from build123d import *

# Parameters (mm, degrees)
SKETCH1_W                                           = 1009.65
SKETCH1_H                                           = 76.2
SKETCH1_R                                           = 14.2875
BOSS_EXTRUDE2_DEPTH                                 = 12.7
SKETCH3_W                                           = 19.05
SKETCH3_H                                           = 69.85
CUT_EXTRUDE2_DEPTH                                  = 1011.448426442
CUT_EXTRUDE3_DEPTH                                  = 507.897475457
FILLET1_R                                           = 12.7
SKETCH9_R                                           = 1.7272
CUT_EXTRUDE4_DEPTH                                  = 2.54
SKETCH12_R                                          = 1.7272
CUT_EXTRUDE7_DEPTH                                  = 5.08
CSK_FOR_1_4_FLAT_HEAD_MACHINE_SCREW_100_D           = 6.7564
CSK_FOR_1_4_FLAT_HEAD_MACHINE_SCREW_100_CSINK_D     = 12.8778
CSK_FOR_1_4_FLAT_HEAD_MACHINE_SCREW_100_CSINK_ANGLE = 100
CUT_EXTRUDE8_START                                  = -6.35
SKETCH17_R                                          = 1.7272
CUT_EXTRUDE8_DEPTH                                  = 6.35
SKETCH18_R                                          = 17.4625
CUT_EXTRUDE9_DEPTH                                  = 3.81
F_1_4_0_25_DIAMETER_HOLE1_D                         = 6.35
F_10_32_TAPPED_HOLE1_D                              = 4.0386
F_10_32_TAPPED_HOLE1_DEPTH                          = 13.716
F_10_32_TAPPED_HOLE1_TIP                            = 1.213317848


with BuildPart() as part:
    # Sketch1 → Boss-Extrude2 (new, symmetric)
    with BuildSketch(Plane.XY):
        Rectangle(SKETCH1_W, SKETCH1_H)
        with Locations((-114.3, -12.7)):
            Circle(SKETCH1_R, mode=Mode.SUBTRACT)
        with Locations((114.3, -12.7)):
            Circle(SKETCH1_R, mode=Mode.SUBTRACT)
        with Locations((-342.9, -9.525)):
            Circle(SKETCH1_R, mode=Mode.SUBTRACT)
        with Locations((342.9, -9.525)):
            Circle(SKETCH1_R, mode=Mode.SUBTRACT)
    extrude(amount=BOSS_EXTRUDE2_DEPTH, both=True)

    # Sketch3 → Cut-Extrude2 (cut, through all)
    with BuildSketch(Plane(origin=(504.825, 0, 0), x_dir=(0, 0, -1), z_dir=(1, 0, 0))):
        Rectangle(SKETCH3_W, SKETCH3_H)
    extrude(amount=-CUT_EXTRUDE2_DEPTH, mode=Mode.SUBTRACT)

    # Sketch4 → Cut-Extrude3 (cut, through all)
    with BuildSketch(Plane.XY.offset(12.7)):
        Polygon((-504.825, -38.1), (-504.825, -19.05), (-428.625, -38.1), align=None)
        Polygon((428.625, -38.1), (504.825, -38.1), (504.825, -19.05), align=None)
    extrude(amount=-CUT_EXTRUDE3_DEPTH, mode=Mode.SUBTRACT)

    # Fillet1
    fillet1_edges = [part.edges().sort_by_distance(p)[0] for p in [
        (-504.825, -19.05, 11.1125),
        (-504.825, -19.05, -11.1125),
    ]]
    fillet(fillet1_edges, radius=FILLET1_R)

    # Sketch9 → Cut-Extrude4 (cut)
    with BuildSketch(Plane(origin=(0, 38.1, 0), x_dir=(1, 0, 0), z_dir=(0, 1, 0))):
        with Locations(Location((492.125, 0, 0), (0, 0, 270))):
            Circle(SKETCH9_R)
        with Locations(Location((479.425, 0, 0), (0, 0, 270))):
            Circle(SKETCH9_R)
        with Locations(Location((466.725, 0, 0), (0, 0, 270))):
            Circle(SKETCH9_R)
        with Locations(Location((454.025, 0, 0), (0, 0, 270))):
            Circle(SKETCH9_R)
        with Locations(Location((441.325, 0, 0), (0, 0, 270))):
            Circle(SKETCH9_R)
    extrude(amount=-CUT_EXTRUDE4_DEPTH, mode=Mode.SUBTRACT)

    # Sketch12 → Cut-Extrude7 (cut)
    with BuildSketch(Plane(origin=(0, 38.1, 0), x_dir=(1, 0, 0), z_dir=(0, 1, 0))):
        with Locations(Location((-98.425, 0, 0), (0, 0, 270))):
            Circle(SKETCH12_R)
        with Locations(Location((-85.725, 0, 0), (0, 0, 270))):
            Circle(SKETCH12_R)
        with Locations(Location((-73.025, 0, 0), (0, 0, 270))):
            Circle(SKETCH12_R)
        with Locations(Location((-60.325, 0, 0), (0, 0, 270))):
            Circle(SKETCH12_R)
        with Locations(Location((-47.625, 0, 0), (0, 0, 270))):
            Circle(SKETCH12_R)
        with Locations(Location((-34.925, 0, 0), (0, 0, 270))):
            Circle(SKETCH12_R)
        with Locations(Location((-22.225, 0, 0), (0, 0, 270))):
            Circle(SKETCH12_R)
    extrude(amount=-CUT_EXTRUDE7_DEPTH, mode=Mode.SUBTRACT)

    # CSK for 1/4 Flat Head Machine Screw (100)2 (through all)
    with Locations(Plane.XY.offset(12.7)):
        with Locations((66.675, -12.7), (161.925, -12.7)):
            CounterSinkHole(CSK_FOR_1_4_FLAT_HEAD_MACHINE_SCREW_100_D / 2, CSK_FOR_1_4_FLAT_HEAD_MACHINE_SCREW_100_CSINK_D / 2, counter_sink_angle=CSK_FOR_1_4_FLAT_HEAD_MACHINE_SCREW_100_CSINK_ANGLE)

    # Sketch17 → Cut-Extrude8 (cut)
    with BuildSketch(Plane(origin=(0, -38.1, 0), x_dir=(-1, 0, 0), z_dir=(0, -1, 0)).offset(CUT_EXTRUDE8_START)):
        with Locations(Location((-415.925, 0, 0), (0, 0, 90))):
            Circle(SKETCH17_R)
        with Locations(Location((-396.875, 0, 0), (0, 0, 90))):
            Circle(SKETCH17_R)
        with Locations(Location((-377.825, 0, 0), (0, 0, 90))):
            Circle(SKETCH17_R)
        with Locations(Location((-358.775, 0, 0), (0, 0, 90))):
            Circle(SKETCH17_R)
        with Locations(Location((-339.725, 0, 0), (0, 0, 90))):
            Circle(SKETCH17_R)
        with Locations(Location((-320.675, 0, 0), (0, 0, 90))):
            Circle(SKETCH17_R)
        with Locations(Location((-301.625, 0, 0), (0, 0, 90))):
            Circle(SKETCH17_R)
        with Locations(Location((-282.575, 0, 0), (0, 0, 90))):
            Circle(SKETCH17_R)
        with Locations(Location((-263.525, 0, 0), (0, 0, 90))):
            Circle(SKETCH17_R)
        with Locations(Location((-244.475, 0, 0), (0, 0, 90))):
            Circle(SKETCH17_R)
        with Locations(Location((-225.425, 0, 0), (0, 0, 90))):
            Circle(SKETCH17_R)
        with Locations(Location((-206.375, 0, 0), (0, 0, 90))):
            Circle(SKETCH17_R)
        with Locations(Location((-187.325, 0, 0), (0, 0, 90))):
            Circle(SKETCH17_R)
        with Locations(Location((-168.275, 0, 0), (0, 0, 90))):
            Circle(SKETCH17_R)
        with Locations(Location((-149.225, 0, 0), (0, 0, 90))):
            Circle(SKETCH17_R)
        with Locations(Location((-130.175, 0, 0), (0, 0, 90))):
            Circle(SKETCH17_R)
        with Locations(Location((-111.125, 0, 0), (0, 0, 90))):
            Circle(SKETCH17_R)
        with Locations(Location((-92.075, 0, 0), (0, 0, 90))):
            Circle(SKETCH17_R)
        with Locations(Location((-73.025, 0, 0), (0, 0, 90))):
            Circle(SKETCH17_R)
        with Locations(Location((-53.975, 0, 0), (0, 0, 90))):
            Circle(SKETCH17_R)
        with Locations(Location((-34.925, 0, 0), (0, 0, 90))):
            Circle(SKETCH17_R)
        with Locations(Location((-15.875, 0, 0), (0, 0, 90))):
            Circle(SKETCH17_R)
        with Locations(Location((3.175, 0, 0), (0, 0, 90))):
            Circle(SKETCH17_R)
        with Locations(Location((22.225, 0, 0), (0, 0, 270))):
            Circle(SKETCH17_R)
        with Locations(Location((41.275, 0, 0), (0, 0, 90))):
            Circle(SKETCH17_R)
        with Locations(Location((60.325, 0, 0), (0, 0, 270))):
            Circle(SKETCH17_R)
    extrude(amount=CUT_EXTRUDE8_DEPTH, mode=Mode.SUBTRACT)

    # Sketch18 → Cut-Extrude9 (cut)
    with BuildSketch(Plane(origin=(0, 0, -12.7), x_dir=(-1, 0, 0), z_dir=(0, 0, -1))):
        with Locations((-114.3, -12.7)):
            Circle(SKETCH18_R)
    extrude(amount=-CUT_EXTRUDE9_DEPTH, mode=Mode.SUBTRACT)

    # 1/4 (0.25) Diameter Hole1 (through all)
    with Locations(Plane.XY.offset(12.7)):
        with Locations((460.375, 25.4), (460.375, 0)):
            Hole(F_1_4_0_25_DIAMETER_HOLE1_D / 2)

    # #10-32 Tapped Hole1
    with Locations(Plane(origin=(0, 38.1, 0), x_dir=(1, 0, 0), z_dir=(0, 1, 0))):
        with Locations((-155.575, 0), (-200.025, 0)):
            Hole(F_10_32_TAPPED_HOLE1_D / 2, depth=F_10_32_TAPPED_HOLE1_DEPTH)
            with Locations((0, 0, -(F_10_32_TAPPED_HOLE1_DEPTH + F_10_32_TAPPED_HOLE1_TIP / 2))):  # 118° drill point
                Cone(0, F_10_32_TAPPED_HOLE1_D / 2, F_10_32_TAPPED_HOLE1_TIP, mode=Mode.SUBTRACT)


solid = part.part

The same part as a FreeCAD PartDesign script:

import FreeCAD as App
import Part
import Sketcher

V = App.Vector
Q = App.Units.Quantity


def edges_at(feature, points):
    """Names of the edges that pass closest to the given points."""
    edges = feature.Shape.Edges
    near = lambda p: min(range(len(edges)), key=lambda i: edges[i].distToShape(Part.Vertex(*p))[0])
    return sorted({f"Edge{near(p) + 1}" for p in points})


def add_polygon(sketch, points):
    """Adds a closed chain of lines whose ends are joined by coincident constraints."""
    first, n = sketch.GeometryCount, len(points)
    for a, b in zip(points, points[1:] + points[:1]):
        sketch.addGeometry(Part.LineSegment(App.Vector(*a, 0), App.Vector(*b, 0)), False)
    for i in range(n):
        sketch.addConstraint(Sketcher.Constraint("Coincident", first + i, 2, first + (i + 1) % n, 1))

doc = App.newDocument("Part")
body = doc.addObject("PartDesign::Body", "Body")

# Sketch on XY plane
sketch1 = body.newObject("Sketcher::SketchObject", "Sketch")
sketch1.AttachmentSupport = (doc.getObject("XY_Plane"), [""])
sketch1.MapMode = "FlatFace"
add_polygon(sketch1, [(-505, 38), (-505, -38), (505, -38), (505, 38)])  # lines 0-3
sketch1.addGeometry(Part.Circle(V(-114, -13, 0), V(0, 0, 1), 14), False)  # 4
sketch1.addGeometry(Part.Circle(V(114, -13, 0), V(0, 0, 1), 14), False)  # 5
sketch1.addGeometry(Part.Circle(V(-343, -10, 0), V(0, 0, 1), 14), False)  # 6
sketch1.addGeometry(Part.Circle(V(343, -10, 0), V(0, 0, 1), 14), False)  # 7
sketch1.addConstraint([
    Sketcher.Constraint("Vertical", 0),
    Sketcher.Constraint("Horizontal", 1),
    Sketcher.Constraint("Vertical", 2),
    Sketcher.Constraint("Horizontal", 3),
    Sketcher.Constraint("Equal", 4, 5),
    Sketcher.Constraint("Equal", 5, 6),
    Sketcher.Constraint("Equal", 6, 7),
    Sketcher.Constraint("Symmetric", 0, 2, 2, 2, -1, 1),
    Sketcher.Constraint("Symmetric", 4, 3, 5, 3, -2),
    Sketcher.Constraint("Symmetric", 6, 3, 7, 3, -2),
    Sketcher.Constraint("DistanceY", 0, 2, 0, 1, Q("3 in")),
    Sketcher.Constraint("Diameter", 4, Q("1.125 in")),
    Sketcher.Constraint("DistanceX", 4, 3, 5, 3, Q("9 in")),
    Sketcher.Constraint("DistanceX", 6, 3, 4, 3, Q("9 in")),
    Sketcher.Constraint("DistanceY", 0, 2, 4, 3, Q("1 in")),
    Sketcher.Constraint("DistanceX", 1, 1, 1, 2, Q("39.75 in")),
    Sketcher.Constraint("DistanceY", 6, 3, -1, 1, Q("0.375 in")),
])
pad1 = body.newObject("PartDesign::Pad", "Pad")
pad1.Profile = sketch1
pad1.Length = Q("1 in")
pad1.Midplane = True

# Sketch on YZ plane
sketch2 = body.newObject("Sketcher::SketchObject", "Sketch001")
sketch2.AttachmentSupport = (doc.getObject("YZ_Plane"), [""])
sketch2.MapMode = "FlatFace"
sketch2.AttachmentOffset = App.Placement(V(0, 0, 19.875 * 25.4), App.Rotation())
add_polygon(sketch2, [(35, 10), (-35, 10), (-35, -10), (35, -10)])  # lines 0-3
sketch2.addConstraint([
    Sketcher.Constraint("Horizontal", 0),
    Sketcher.Constraint("Vertical", 1),
    Sketcher.Constraint("Horizontal", 2),
    Sketcher.Constraint("Vertical", 3),
    Sketcher.Constraint("Symmetric", 0, 2, 2, 2, -1, 1),
    Sketcher.Constraint("DistanceX", 0, 2, 0, 1, Q("2.75 in")),
    Sketcher.Constraint("DistanceY", 1, 2, 1, 1, Q("0.75 in")),
])
pocket1 = body.newObject("PartDesign::Pocket", "Pocket")
pocket1.Profile = sketch2
pocket1.Type = "ThroughAll"

# Sketch on XY plane
sketch3 = body.newObject("Sketcher::SketchObject", "Sketch002")
sketch3.AttachmentSupport = (doc.getObject("XY_Plane"), [""])
sketch3.MapMode = "FlatFace"
sketch3.AttachmentOffset = App.Placement(V(0, 0, 0.5 * 25.4), App.Rotation())
add_polygon(sketch3, [(-505, -19), (-505, -38), (-429, -38)])  # lines 0-2
add_polygon(sketch3, [(429, -38), (505, -38), (505, -19)])  # lines 3-5
sketch3.addConstraint([
    Sketcher.Constraint("Vertical", 0),
    Sketcher.Constraint("Horizontal", 1),
    Sketcher.Constraint("Horizontal", 3),
    Sketcher.Constraint("Vertical", 4),
    Sketcher.Constraint("Symmetric", 0, 2, 3, 2, -2),
    Sketcher.Constraint("Horizontal", 2, 2, 4, 2),
    Sketcher.Constraint("Equal", 1, 3),
    Sketcher.Constraint("DistanceX", 1, 1, 1, 2, Q("3 in")),
    Sketcher.Constraint("DistanceY", 0, 2, 0, 1, Q("0.75 in")),
    Sketcher.Constraint("DistanceY", 0, 2, -1, 1, Q("1.5 in")),
    Sketcher.Constraint("DistanceX", 1, 2, 3, 2, Q("36.75 in")),
])
pocket2 = body.newObject("PartDesign::Pocket", "Pocket001")
pocket2.Profile = sketch3
pocket2.Type = "ThroughAll"
doc.recompute()

fillet = body.newObject("PartDesign::Fillet", "Fillet")
fillet.Base = (pocket2, edges_at(pocket2, [(-504.825, -19.05, 11.113), (-504.825, -19.05, -11.113)]))
fillet.Radius = Q("0.5 in")

# Sketch on XZ plane
sketch4 = body.newObject("Sketcher::SketchObject", "Sketch003")
sketch4.AttachmentSupport = (doc.getObject("XZ_Plane"), [""])
sketch4.MapMode = "FlatFace"
sketch4.AttachmentOffset = App.Placement(V(0, 0, -1.5 * 25.4), App.Rotation())
sketch4.addGeometry([
    Part.Circle(V(492.1, 0, 0), V(0, 0, 1), 1.7),  # 0
    Part.Circle(V(479.4, 0, 0), V(0, 0, 1), 1.7),  # 1
    Part.Circle(V(466.7, 0, 0), V(0, 0, 1), 1.7),  # 2
    Part.Circle(V(454, 0, 0), V(0, 0, 1), 1.7),  # 3
    Part.Circle(V(441.3, 0, 0), V(0, 0, 1), 1.7),  # 4
], False)
sketch4.addConstraint([
    Sketcher.Constraint("Equal", 0, 1),
    Sketcher.Constraint("Equal", 1, 2),
    Sketcher.Constraint("Equal", 2, 3),
    Sketcher.Constraint("Equal", 3, 4),
    Sketcher.Constraint("PointOnObject", 0, 3, -1),
    Sketcher.Constraint("PointOnObject", 1, 3, -1),
    Sketcher.Constraint("PointOnObject", 2, 3, -1),
    Sketcher.Constraint("PointOnObject", 3, 3, -1),
    Sketcher.Constraint("PointOnObject", 4, 3, -1),
    Sketcher.Constraint("Diameter", 0, Q("0.136 in")),
    Sketcher.Constraint("DistanceX", 2, 3, 0, 3, Q("1 in")),
    Sketcher.Constraint("DistanceX", 3, 3, 1, 3, Q("1 in")),
    Sketcher.Constraint("DistanceX", 4, 3, 2, 3, Q("1 in")),
    Sketcher.Constraint("DistanceX", 1, 3, 0, 3, Q("0.5 in")),
    Sketcher.Constraint("DistanceX", -1, 1, 0, 3, Q("19.375 in")),
])
pocket3 = body.newObject("PartDesign::Pocket", "Pocket002")
pocket3.Profile = sketch4
pocket3.Length = Q("0.1 in")
pocket3.Reversed = True

# Sketch on XZ plane
sketch5 = body.newObject("Sketcher::SketchObject", "Sketch004")
sketch5.AttachmentSupport = (doc.getObject("XZ_Plane"), [""])
sketch5.MapMode = "FlatFace"
sketch5.AttachmentOffset = App.Placement(V(0, 0, -1.5 * 25.4), App.Rotation())
sketch5.addGeometry([
    Part.Circle(V(-98.4, 0, 0), V(0, 0, 1), 1.7),  # 0
    Part.Circle(V(-85.7, 0, 0), V(0, 0, 1), 1.7),  # 1
    Part.Circle(V(-73, 0, 0), V(0, 0, 1), 1.7),  # 2
    Part.Circle(V(-60.3, 0, 0), V(0, 0, 1), 1.7),  # 3
    Part.Circle(V(-47.6, 0, 0), V(0, 0, 1), 1.7),  # 4
    Part.Circle(V(-34.9, 0, 0), V(0, 0, 1), 1.7),  # 5
    Part.Circle(V(-22.2, 0, 0), V(0, 0, 1), 1.7),  # 6
], False)
sketch5.addConstraint([
    Sketcher.Constraint("Equal", 0, 1),
    Sketcher.Constraint("Equal", 1, 2),
    Sketcher.Constraint("Equal", 2, 3),
    Sketcher.Constraint("Equal", 3, 4),
    Sketcher.Constraint("Equal", 4, 5),
    Sketcher.Constraint("Equal", 5, 6),
    Sketcher.Constraint("PointOnObject", 0, 3, -1),
    Sketcher.Constraint("PointOnObject", 1, 3, -1),
    Sketcher.Constraint("PointOnObject", 2, 3, -1),
    Sketcher.Constraint("PointOnObject", 3, 3, -1),
    Sketcher.Constraint("PointOnObject", 4, 3, -1),
    Sketcher.Constraint("PointOnObject", 5, 3, -1),
    Sketcher.Constraint("PointOnObject", 6, 3, -1),
    Sketcher.Constraint("Diameter", 0, Q("0.136 in")),
    Sketcher.Constraint("DistanceX", 0, 3, 2, 3, Q("1 in")),
    Sketcher.Constraint("DistanceX", 1, 3, 3, 3, Q("1 in")),
    Sketcher.Constraint("DistanceX", 2, 3, 4, 3, Q("1 in")),
    Sketcher.Constraint("DistanceX", 3, 3, 5, 3, Q("1 in")),
    Sketcher.Constraint("DistanceX", 4, 3, 6, 3, Q("1 in")),
    Sketcher.Constraint("DistanceX", 0, 3, 1, 3, Q("0.5 in")),
    Sketcher.Constraint("DistanceX", 0, 3, -1, 1, Q("3.875 in")),
])
pocket4 = body.newObject("PartDesign::Pocket", "Pocket003")
pocket4.Profile = sketch5
pocket4.Length = Q("0.2 in")
pocket4.Reversed = True

# Sketch on XY plane
sketch6 = body.newObject("Sketcher::SketchObject", "Sketch005")
sketch6.AttachmentSupport = (doc.getObject("XY_Plane"), [""])
sketch6.MapMode = "FlatFace"
sketch6.AttachmentOffset = App.Placement(V(0, 0, 0.5 * 25.4), App.Rotation())
sketch6.addGeometry([
    Part.Circle(V(66.7, -12.7, 0), V(0, 0, 1), 3.4),
    Part.Circle(V(161.9, -12.7, 0), V(0, 0, 1), 3.4),
], False)
sketch6.addConstraint([
    Sketcher.Constraint("Equal", 0, 1),
    Sketcher.Constraint("Horizontal", 0, 3, 1, 3),
    Sketcher.Constraint("Diameter", 0, Q("0.266 in")),
    Sketcher.Constraint("DistanceY", 0, 3, -1, 1, Q("0.5 in")),
    Sketcher.Constraint("DistanceX", 0, 3, 1, 3, Q("3.75 in")),
    Sketcher.Constraint("DistanceX", -1, 1, 0, 3, Q("2.625 in")),
])
doc.recompute()
hole = body.newObject("PartDesign::Hole", "Hole")
hole.Profile = sketch6
hole.ThreadType = "None"
hole.Diameter = Q("0.266 in")
hole.DepthType = "ThroughAll"
hole.HoleCutType = "Countersink"
hole.HoleCutDiameter = Q("0.507 in")
hole.HoleCutCountersinkAngle = 100

# Sketch on XZ plane
sketch7 = body.newObject("Sketcher::SketchObject", "Sketch006")
sketch7.AttachmentSupport = (doc.getObject("XZ_Plane"), [""])
sketch7.MapMode = "FlatFace"
sketch7.AttachmentOffset = App.Placement(V(0, 0, 1.25 * 25.4), App.Rotation())
sketch7.addGeometry([
    Part.Circle(V(415.9, 0, 0), V(0, 0, 1), 1.7),  # 0
    Part.Circle(V(396.9, 0, 0), V(0, 0, 1), 1.7),  # 1
    Part.Circle(V(377.8, 0, 0), V(0, 0, 1), 1.7),  # 2
    Part.Circle(V(358.8, 0, 0), V(0, 0, 1), 1.7),  # 3
    Part.Circle(V(339.7, 0, 0), V(0, 0, 1), 1.7),  # 4
    Part.Circle(V(320.7, 0, 0), V(0, 0, 1), 1.7),  # 5
    Part.Circle(V(301.6, 0, 0), V(0, 0, 1), 1.7),  # 6
    Part.Circle(V(282.6, 0, 0), V(0, 0, 1), 1.7),  # 7
    Part.Circle(V(263.5, 0, 0), V(0, 0, 1), 1.7),  # 8
    Part.Circle(V(244.5, 0, 0), V(0, 0, 1), 1.7),  # 9
    Part.Circle(V(225.4, 0, 0), V(0, 0, 1), 1.7),  # 10
    Part.Circle(V(206.4, 0, 0), V(0, 0, 1), 1.7),  # 11
    Part.Circle(V(187.3, 0, 0), V(0, 0, 1), 1.7),  # 12
    Part.Circle(V(168.3, 0, 0), V(0, 0, 1), 1.7),  # 13
    Part.Circle(V(149.2, 0, 0), V(0, 0, 1), 1.7),  # 14
    Part.Circle(V(130.2, 0, 0), V(0, 0, 1), 1.7),  # 15
    Part.Circle(V(111.1, 0, 0), V(0, 0, 1), 1.7),  # 16
    Part.Circle(V(92.1, 0, 0), V(0, 0, 1), 1.7),  # 17
    Part.Circle(V(73, 0, 0), V(0, 0, 1), 1.7),  # 18
    Part.Circle(V(54, 0, 0), V(0, 0, 1), 1.7),  # 19
    Part.Circle(V(34.9, 0, 0), V(0, 0, 1), 1.7),  # 20
    Part.Circle(V(15.9, 0, 0), V(0, 0, 1), 1.7),  # 21
    Part.Circle(V(-3.2, 0, 0), V(0, 0, 1), 1.7),  # 22
    Part.Circle(V(-22.2, 0, 0), V(0, 0, 1), 1.7),  # 23
    Part.Circle(V(-41.3, 0, 0), V(0, 0, 1), 1.7),  # 24
    Part.Circle(V(-60.3, 0, 0), V(0, 0, 1), 1.7),  # 25
], False)
sketch7.addConstraint([
    Sketcher.Constraint("Equal", 0, 1),
    Sketcher.Constraint("Equal", 1, 2),
    Sketcher.Constraint("Equal", 2, 3),
    Sketcher.Constraint("Equal", 3, 4),
    Sketcher.Constraint("Equal", 4, 5),
    Sketcher.Constraint("Equal", 5, 6),
    Sketcher.Constraint("Equal", 6, 7),
    Sketcher.Constraint("Equal", 7, 8),
    Sketcher.Constraint("Equal", 8, 9),
    Sketcher.Constraint("Equal", 9, 10),
    Sketcher.Constraint("Equal", 10, 11),
    Sketcher.Constraint("Equal", 11, 12),
    Sketcher.Constraint("Equal", 12, 13),
    Sketcher.Constraint("Equal", 13, 14),
    Sketcher.Constraint("Equal", 14, 15),
    Sketcher.Constraint("Equal", 15, 16),
    Sketcher.Constraint("Equal", 16, 17),
    Sketcher.Constraint("Equal", 17, 18),
    Sketcher.Constraint("Equal", 18, 19),
    Sketcher.Constraint("Equal", 19, 20),
    Sketcher.Constraint("Equal", 20, 21),
    Sketcher.Constraint("Equal", 21, 22),
    Sketcher.Constraint("Equal", 22, 23),
    Sketcher.Constraint("Equal", 23, 24),
    Sketcher.Constraint("Equal", 24, 25),
    Sketcher.Constraint("PointOnObject", 0, 3, -1),
    Sketcher.Constraint("PointOnObject", 1, 3, -1),
    Sketcher.Constraint("PointOnObject", 2, 3, -1),
    Sketcher.Constraint("PointOnObject", 3, 3, -1),
    Sketcher.Constraint("PointOnObject", 4, 3, -1),
    Sketcher.Constraint("PointOnObject", 5, 3, -1),
    Sketcher.Constraint("PointOnObject", 6, 3, -1),
    Sketcher.Constraint("PointOnObject", 7, 3, -1),
    Sketcher.Constraint("PointOnObject", 8, 3, -1),
    Sketcher.Constraint("PointOnObject", 9, 3, -1),
    Sketcher.Constraint("PointOnObject", 10, 3, -1),
    Sketcher.Constraint("PointOnObject", 11, 3, -1),
    Sketcher.Constraint("PointOnObject", 12, 3, -1),
    Sketcher.Constraint("PointOnObject", 13, 3, -1),
    Sketcher.Constraint("PointOnObject", 14, 3, -1),
    Sketcher.Constraint("PointOnObject", 15, 3, -1),
    Sketcher.Constraint("PointOnObject", 16, 3, -1),
    Sketcher.Constraint("PointOnObject", 17, 3, -1),
    Sketcher.Constraint("PointOnObject", 18, 3, -1),
    Sketcher.Constraint("PointOnObject", 19, 3, -1),
    Sketcher.Constraint("PointOnObject", 20, 3, -1),
    Sketcher.Constraint("PointOnObject", 21, 3, -1),
    Sketcher.Constraint("PointOnObject", 22, 3, -1),
    Sketcher.Constraint("PointOnObject", 23, 3, -1),
    Sketcher.Constraint("PointOnObject", 24, 3, -1),
    Sketcher.Constraint("PointOnObject", 25, 3, -1),
    Sketcher.Constraint("Diameter", 0, Q("0.136 in")),
    Sketcher.Constraint("DistanceX", 4, 3, 0, 3, Q("3 in")),
    Sketcher.Constraint("DistanceX", 5, 3, 1, 3, Q("3 in")),
    Sketcher.Constraint("DistanceX", 6, 3, 2, 3, Q("3 in")),
    Sketcher.Constraint("DistanceX", 7, 3, 3, 3, Q("3 in")),
    Sketcher.Constraint("DistanceX", 8, 3, 4, 3, Q("3 in")),
    Sketcher.Constraint("DistanceX", 9, 3, 5, 3, Q("3 in")),
    Sketcher.Constraint("DistanceX", 10, 3, 6, 3, Q("3 in")),
    Sketcher.Constraint("DistanceX", 11, 3, 7, 3, Q("3 in")),
    Sketcher.Constraint("DistanceX", 12, 3, 8, 3, Q("3 in")),
    Sketcher.Constraint("DistanceX", 13, 3, 9, 3, Q("3 in")),
    Sketcher.Constraint("DistanceX", 14, 3, 10, 3, Q("3 in")),
    Sketcher.Constraint("DistanceX", 15, 3, 11, 3, Q("3 in")),
    Sketcher.Constraint("DistanceX", 16, 3, 12, 3, Q("3 in")),
    Sketcher.Constraint("DistanceX", 17, 3, 13, 3, Q("3 in")),
    Sketcher.Constraint("DistanceX", 18, 3, 14, 3, Q("3 in")),
    Sketcher.Constraint("DistanceX", 19, 3, 15, 3, Q("3 in")),
    Sketcher.Constraint("DistanceX", 20, 3, 16, 3, Q("3 in")),
    Sketcher.Constraint("DistanceX", 21, 3, 17, 3, Q("3 in")),
    Sketcher.Constraint("DistanceX", 22, 3, 18, 3, Q("3 in")),
    Sketcher.Constraint("DistanceX", 23, 3, 19, 3, Q("3 in")),
    Sketcher.Constraint("DistanceX", 24, 3, 20, 3, Q("3 in")),
    Sketcher.Constraint("DistanceX", 25, 3, 21, 3, Q("3 in")),
    Sketcher.Constraint("DistanceX", 2, 3, 0, 3, Q("1.5 in")),
    Sketcher.Constraint("DistanceX", 3, 3, 1, 3, Q("1.5 in")),
    Sketcher.Constraint("DistanceX", 1, 3, 0, 3, Q("0.75 in")),
    Sketcher.Constraint("DistanceX", -1, 1, 0, 3, Q("16.375 in")),
])
pocket5 = body.newObject("PartDesign::Pocket", "Pocket004")
pocket5.Profile = sketch7
pocket5.Length = Q("0.25 in")
pocket5.Reversed = True

# Sketch on XY plane
sketch8 = body.newObject("Sketcher::SketchObject", "Sketch007")
sketch8.AttachmentSupport = (doc.getObject("XY_Plane"), [""])
sketch8.MapMode = "FlatFace"
sketch8.AttachmentOffset = App.Placement(V(0, 0, -0.5 * 25.4), App.Rotation())
sketch8.addGeometry(Part.Circle(V(114, -13, 0), V(0, 0, 1), 17), False)
sketch8.addConstraint([
    Sketcher.Constraint("Diameter", 0, Q("1.375 in")),
    Sketcher.Constraint("DistanceX", -1, 1, 0, 3, Q("4.5 in")),
    Sketcher.Constraint("DistanceY", 0, 3, -1, 1, Q("0.5 in")),
])
pocket6 = body.newObject("PartDesign::Pocket", "Pocket005")
pocket6.Profile = sketch8
pocket6.Length = Q("0.15 in")
pocket6.Reversed = True

# Sketch on XY plane
sketch9 = body.newObject("Sketcher::SketchObject", "Sketch008")
sketch9.AttachmentSupport = (doc.getObject("XY_Plane"), [""])
sketch9.MapMode = "FlatFace"
sketch9.AttachmentOffset = App.Placement(V(0, 0, 0.5 * 25.4), App.Rotation())
sketch9.addGeometry([
    Part.Circle(V(460.4, 25.4, 0), V(0, 0, 1), 3.2),
    Part.Circle(V(460.4, 0, 0), V(0, 0, 1), 3.2),
], False)
sketch9.addConstraint([
    Sketcher.Constraint("Equal", 0, 1),
    Sketcher.Constraint("PointOnObject", 1, 3, -1),
    Sketcher.Constraint("Vertical", 0, 3, 1, 3),
    Sketcher.Constraint("Diameter", 0, Q("0.25 in")),
    Sketcher.Constraint("DistanceY", -1, 1, 0, 3, Q("1 in")),
    Sketcher.Constraint("DistanceX", -1, 1, 0, 3, Q("18.125 in")),
])
doc.recompute()
hole2 = body.newObject("PartDesign::Hole", "Hole001")
hole2.Profile = sketch9
hole2.ThreadType = "None"
hole2.Diameter = Q("0.25 in")
hole2.DepthType = "ThroughAll"

# Sketch on XZ plane
sketch10 = body.newObject("Sketcher::SketchObject", "Sketch009")
sketch10.AttachmentSupport = (doc.getObject("XZ_Plane"), [""])
sketch10.MapMode = "FlatFace"
sketch10.AttachmentOffset = App.Placement(V(0, 0, -1.5 * 25.4), App.Rotation())
sketch10.addGeometry([
    Part.Circle(V(-155.6, 0, 0), V(0, 0, 1), 2),
    Part.Circle(V(-200, 0, 0), V(0, 0, 1), 2),
], False)
sketch10.addConstraint([
    Sketcher.Constraint("Equal", 0, 1),
    Sketcher.Constraint("PointOnObject", 0, 3, -1),
    Sketcher.Constraint("PointOnObject", 1, 3, -1),
    Sketcher.Constraint("Diameter", 0, Q("0.159 in")),
    Sketcher.Constraint("DistanceX", 1, 3, 0, 3, Q("1.75 in")),
    Sketcher.Constraint("DistanceX", 0, 3, -1, 1, Q("6.125 in")),
])
doc.recompute()
hole3 = body.newObject("PartDesign::Hole", "Hole002")
hole3.Profile = sketch10
hole3.ThreadType = "None"
hole3.Diameter = Q("0.159 in")
hole3.DepthType = "Dimension"
hole3.Depth = Q("0.54 in")
hole3.DrillPoint = "Angled"
hole3.DrillPointAngle = 118
hole3.Reversed = True

doc.recompute()
